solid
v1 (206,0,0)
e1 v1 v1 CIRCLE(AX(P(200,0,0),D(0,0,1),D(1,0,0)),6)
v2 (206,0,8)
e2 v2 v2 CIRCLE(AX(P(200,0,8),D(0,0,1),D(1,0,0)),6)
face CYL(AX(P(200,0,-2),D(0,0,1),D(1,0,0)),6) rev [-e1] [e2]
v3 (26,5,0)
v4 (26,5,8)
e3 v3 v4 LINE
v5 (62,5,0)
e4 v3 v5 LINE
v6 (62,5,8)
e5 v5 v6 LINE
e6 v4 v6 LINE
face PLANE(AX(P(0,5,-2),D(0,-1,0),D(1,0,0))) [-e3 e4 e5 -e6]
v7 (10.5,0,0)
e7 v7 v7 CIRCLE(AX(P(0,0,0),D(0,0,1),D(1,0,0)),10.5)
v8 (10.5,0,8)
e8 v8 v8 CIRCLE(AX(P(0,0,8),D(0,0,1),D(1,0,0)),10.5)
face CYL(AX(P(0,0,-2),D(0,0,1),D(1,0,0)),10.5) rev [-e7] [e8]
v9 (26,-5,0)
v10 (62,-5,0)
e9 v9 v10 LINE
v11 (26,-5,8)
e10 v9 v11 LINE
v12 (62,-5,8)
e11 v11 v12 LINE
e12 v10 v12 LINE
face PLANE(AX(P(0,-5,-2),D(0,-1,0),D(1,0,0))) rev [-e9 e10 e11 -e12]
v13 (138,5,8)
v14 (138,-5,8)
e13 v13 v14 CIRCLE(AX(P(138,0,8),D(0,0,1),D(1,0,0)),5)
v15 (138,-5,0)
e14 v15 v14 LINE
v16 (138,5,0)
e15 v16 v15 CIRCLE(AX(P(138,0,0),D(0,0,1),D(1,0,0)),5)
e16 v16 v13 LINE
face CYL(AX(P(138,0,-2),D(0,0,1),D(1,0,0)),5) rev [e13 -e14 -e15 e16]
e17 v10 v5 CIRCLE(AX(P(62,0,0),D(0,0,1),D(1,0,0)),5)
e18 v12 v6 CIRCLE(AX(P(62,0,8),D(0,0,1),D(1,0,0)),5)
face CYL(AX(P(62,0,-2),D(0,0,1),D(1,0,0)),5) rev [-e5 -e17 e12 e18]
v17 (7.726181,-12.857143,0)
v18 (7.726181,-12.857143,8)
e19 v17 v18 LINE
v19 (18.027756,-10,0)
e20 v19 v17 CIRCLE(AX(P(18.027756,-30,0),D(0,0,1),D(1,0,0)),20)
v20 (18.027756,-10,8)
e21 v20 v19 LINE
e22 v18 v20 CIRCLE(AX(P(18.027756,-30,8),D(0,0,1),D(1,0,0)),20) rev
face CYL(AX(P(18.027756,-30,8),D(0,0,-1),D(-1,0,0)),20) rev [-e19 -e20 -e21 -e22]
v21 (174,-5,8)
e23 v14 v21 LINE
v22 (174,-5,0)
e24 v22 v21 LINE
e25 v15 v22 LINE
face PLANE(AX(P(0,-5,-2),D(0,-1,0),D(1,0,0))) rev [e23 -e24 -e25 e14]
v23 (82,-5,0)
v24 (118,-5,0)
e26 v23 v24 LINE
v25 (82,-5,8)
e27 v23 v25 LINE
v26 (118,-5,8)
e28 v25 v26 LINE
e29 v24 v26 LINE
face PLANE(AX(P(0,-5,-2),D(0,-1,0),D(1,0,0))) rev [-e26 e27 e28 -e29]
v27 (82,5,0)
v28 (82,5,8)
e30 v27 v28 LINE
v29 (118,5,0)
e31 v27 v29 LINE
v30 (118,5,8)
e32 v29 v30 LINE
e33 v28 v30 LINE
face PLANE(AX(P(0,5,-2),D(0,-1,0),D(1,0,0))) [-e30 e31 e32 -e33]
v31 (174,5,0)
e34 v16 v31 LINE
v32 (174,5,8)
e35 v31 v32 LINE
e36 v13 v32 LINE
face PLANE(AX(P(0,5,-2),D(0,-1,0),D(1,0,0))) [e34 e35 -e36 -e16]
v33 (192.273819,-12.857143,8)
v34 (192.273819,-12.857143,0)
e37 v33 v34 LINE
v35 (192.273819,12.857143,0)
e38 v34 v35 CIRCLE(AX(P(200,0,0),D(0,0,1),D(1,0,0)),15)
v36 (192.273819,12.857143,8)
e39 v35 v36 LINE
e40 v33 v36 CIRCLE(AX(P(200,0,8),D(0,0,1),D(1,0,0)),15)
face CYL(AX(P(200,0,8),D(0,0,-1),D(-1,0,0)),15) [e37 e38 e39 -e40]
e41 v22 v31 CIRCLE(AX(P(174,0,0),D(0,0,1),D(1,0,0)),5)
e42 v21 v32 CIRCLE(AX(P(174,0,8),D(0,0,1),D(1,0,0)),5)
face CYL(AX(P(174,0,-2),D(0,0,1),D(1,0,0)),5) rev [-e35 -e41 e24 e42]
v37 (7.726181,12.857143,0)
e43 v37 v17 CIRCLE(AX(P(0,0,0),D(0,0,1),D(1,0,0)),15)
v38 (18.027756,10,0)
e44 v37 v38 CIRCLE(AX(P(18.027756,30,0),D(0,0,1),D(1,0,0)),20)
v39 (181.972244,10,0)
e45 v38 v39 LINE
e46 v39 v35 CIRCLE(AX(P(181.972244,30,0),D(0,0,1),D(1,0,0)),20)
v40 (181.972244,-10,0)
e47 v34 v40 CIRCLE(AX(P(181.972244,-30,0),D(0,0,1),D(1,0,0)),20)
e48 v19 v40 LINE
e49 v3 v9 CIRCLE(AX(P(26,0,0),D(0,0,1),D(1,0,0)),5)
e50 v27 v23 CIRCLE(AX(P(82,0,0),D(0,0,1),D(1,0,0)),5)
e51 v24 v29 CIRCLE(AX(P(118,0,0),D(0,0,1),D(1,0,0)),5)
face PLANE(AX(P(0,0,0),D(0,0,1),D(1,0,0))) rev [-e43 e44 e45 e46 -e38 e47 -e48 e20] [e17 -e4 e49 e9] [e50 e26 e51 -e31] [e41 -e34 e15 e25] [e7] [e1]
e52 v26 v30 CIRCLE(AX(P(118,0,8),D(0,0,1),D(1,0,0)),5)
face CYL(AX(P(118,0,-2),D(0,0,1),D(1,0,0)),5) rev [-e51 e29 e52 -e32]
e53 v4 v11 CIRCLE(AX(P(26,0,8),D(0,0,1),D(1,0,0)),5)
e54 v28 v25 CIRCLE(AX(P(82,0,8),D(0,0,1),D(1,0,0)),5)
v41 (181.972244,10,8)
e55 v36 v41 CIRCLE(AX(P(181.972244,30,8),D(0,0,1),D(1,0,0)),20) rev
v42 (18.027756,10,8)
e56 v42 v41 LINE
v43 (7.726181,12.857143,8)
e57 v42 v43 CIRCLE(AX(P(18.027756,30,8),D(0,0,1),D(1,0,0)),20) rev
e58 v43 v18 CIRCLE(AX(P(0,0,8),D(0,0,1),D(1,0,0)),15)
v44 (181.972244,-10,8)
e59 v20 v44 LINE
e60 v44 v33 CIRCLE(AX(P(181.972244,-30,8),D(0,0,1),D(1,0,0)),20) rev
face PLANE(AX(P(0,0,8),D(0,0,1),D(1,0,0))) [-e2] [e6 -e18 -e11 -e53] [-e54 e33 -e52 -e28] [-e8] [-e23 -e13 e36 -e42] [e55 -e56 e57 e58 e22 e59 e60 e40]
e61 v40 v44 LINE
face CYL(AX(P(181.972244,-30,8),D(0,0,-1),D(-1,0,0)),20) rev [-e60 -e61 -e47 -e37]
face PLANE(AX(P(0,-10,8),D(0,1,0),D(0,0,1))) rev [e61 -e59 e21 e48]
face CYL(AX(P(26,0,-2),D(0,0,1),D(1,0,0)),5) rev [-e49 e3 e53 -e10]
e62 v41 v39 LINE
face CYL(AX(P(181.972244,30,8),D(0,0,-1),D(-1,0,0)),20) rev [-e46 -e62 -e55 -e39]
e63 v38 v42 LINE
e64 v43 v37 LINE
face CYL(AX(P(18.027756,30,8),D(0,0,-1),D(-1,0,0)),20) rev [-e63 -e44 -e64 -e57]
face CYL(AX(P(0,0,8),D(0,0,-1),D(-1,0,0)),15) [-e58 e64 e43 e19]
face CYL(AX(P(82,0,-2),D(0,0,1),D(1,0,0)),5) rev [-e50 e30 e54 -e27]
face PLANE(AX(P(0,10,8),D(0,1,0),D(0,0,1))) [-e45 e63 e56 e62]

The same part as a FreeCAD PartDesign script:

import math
import FreeCAD as App
import Part
import Sketcher
from FreeCAD import Vector
Q = App.Units.Quantity


def edges_at(feature, points):
    """Names of the edges that pass closest to the given points."""
    edges = feature.Shape.Edges
    near = lambda p: min(range(len(edges)), key=lambda i: edges[i].distToShape(Part.Vertex(*p))[0])
    return sorted({f"Edge{near(p) + 1}" for p in points})

doc = App.newDocument("Part")
body = doc.addObject("PartDesign::Body", "Body")

# Sketch on XY plane
sketch1 = doc.addObject("Sketcher::SketchObject", "Sketch")
body.addObject(sketch1)
sketch1.AttachmentSupport = (doc.XY_Plane, [""])
sketch1.MapMode = "FlatFace"
sketch1.addGeometry(Part.LineSegment(Vector(11, -10, 0), Vector(189, -10, 0)), False)
sketch1.addGeometry(Part.ArcOfCircle(Part.Circle(Vector(200, 0, 0), Vector(0, 0, 1), 15), math.radians(-138), math.radians(0)), False)
sketch1.addGeometry(Part.ArcOfCircle(Part.Circle(Vector(200, 0, 0), Vector(0, 0, 1), 15), math.radians(0), math.radians(138)), False)
sketch1.addGeometry(Part.LineSegment(Vector(189, 10, 0), Vector(11, 10, 0)), False)
sketch1.addGeometry(Part.ArcOfCircle(Part.Circle(Vector(0, 0, 0), Vector(0, 0, 1), 15), math.radians(42), math.radians(318)), False)
sketch1.addConstraint(Sketcher.Constraint("Coincident", 0, 2, 1, 1))
sketch1.addConstraint(Sketcher.Constraint("Tangent", 1, 2, 2, 1))
sketch1.addConstraint(Sketcher.Constraint("Coincident", 2, 2, 3, 1))
sketch1.addConstraint(Sketcher.Constraint("Coincident", 3, 2, 4, 1))
sketch1.addConstraint(Sketcher.Constraint("Coincident", 4, 2, 0, 1))
sketch1.addConstraint(Sketcher.Constraint("Horizontal", 0))
sketch1.addConstraint(Sketcher.Constraint("Horizontal", 3))
sketch1.addConstraint(Sketcher.Constraint("Coincident", 4, 3, -1, 1))
sketch1.addConstraint(Sketcher.Constraint("Equal", 1, 2))
sketch1.addConstraint(Sketcher.Constraint("Equal", 2, 4))
sketch1.addConstraint(Sketcher.Constraint("Symmetric", 0, 2, 2, 2, -1))
sketch1.addConstraint(Sketcher.Constraint("PointOnObject", 1, 2, -1))
sketch1.addConstraint(Sketcher.Constraint("Radius", 1, Q("15 mm")))
sketch1.addConstraint(Sketcher.Constraint("DistanceX", -1, 1, 1, 3, Q("200 mm")))
sketch1.addConstraint(Sketcher.Constraint("DistanceY", 0, 2, -1, 1, Q("10 mm")))
pad1 = doc.addObject("PartDesign::Pad", "Pad")
body.addObject(pad1)
pad1.Profile = sketch1
pad1.Length = 8
doc.recompute()

fillet = doc.addObject("PartDesign::Fillet", "Fillet")
body.addObject(fillet)
fillet.Base = (pad1, edges_at(pad1, [
    (11.18, 10, 4),
    (188.82, 10, 4),
    (188.82, -10, 4),
    (11.18, -10, 4),
]))
fillet.Radius = 20

# Sketch on XY plane
sketch2 = doc.addObject("Sketcher::SketchObject", "Sketch001")
body.addObject(sketch2)
sketch2.AttachmentSupport = (doc.XY_Plane, [""])
sketch2.MapMode = "FlatFace"
sketch2.AttachmentOffset = App.Placement(Vector(0, 0, 8), App.Rotation())
sketch2.addGeometry(Part.Circle(Vector(0, 0, 0), Vector(0, 0, 1), 10), False)
sketch2.addGeometry(Part.Circle(Vector(200, 0, 0), Vector(0, 0, 1), 6), False)
sketch2.addConstraint(Sketcher.Constraint("Coincident", 0, 3, -1, 1))
sketch2.addConstraint(Sketcher.Constraint("PointOnObject", 1, 3, -1))
sketch2.addConstraint(Sketcher.Constraint("Diameter", 0, Q("21 mm")))
sketch2.addConstraint(Sketcher.Constraint("Diameter", 1, Q("12 mm")))
sketch2.addConstraint(Sketcher.Constraint("DistanceX", -1, 1, 1, 3, Q("200 mm")))
pocket1 = doc.addObject("PartDesign::Pocket", "Pocket")
body.addObject(pocket1)
pocket1.Profile = sketch2
pocket1.Length = 10

# Sketch on XY plane
sketch3 = doc.addObject("Sketcher::SketchObject", "Sketch002")
body.addObject(sketch3)
sketch3.AttachmentSupport = (doc.XY_Plane, [""])
sketch3.MapMode = "FlatFace"
sketch3.AttachmentOffset = App.Placement(Vector(0, 0, 8), App.Rotation())
sketch3.addGeometry(Part.ArcOfCircle(Part.Circle(Vector(26, 0, 0), Vector(0, 0, 1), 5), math.radians(90), math.radians(270)), False)
sketch3.addGeometry(Part.LineSegment(Vector(26, -5, 0), Vector(62, -5, 0)), False)
sketch3.addGeometry(Part.ArcOfCircle(Part.Circle(Vector(62, 0, 0), Vector(0, 0, 1), 5), math.radians(-90), math.radians(0)), False)
sketch3.addGeometry(Part.ArcOfCircle(Part.Circle(Vector(62, 0, 0), Vector(0, 0, 1), 5), math.radians(0), math.radians(90)), False)
sketch3.addGeometry(Part.LineSegment(Vector(62, 5, 0), Vector(26, 5, 0)), False)
sketch3.addGeometry(Part.LineSegment(Vector(82, -5, 0), Vector(118, -5, 0)), False)
sketch3.addGeometry(Part.ArcOfCircle(Part.Circle(Vector(118, 0, 0), Vector(0, 0, 1), 5), math.radians(-90), math.radians(0)), False)
sketch3.addGeometry(Part.ArcOfCircle(Part.Circle(Vector(118, 0, 0), Vector(0, 0, 1), 5), math.radians(0), math.radians(90)), False)
sketch3.addGeometry(Part.LineSegment(Vector(118, 5, 0), Vector(82, 5, 0)), False)
sketch3.addGeometry(Part.ArcOfCircle(Part.Circle(Vector(82, 0, 0), Vector(0, 0, 1), 5), math.radians(90), math.radians(270)), False)
sketch3.addGeometry(Part.LineSegment(Vector(138, -5, 0), Vector(174, -5, 0)), False)
sketch3.addGeometry(Part.ArcOfCircle(Part.Circle(Vector(174, 0, 0), Vector(0, 0, 1), 5), math.radians(-90), math.radians(0)), False)
sketch3.addGeometry(Part.ArcOfCircle(Part.Circle(Vector(174, 0, 0), Vector(0, 0, 1), 5), math.radians(0), math.radians(90)), False)
sketch3.addGeometry(Part.LineSegment(Vector(174, 5, 0), Vector(138, 5, 0)), False)
sketch3.addGeometry(Part.ArcOfCircle(Part.Circle(Vector(138, 0, 0), Vector(0, 0, 1), 5), math.radians(90), math.radians(270)), False)
sketch3.addConstraint(Sketcher.Constraint("Tangent", 0, 2, 1, 1))
sketch3.addConstraint(Sketcher.Constraint("Tangent", 1, 2, 2, 1))
sketch3.addConstraint(Sketcher.Constraint("Tangent", 2, 2, 3, 1))
sketch3.addConstraint(Sketcher.Constraint("Tangent", 3, 2, 4, 1))
sketch3.addConstraint(Sketcher.Constraint("Tangent", 4, 2, 0, 1))
sketch3.addConstraint(Sketcher.Constraint("Tangent", 5, 2, 6, 1))
sketch3.addConstraint(Sketcher.Constraint("Tangent", 6, 2, 7, 1))
sketch3.addConstraint(Sketcher.Constraint("Tangent", 7, 2, 8, 1))
sketch3.addConstraint(Sketcher.Constraint("Tangent", 8, 2, 9, 1))
sketch3.addConstraint(Sketcher.Constraint("Tangent", 9, 2, 5, 1))
sketch3.addConstraint(Sketcher.Constraint("Tangent", 10, 2, 11, 1))
sketch3.addConstraint(Sketcher.Constraint("Tangent", 11, 2, 12, 1))
sketch3.addConstraint(Sketcher.Constraint("Tangent", 12, 2, 13, 1))
sketch3.addConstraint(Sketcher.Constraint("Tangent", 13, 2, 14, 1))
sketch3.addConstraint(Sketcher.Constraint("Tangent", 14, 2, 10, 1))
sketch3.addConstraint(Sketcher.Constraint("Horizontal", 1))
sketch3.addConstraint(Sketcher.Constraint("Horizontal", 4))
sketch3.addConstraint(Sketcher.Constraint("Horizontal", 5))
sketch3.addConstraint(Sketcher.Constraint("Horizontal", 8))
sketch3.addConstraint(Sketcher.Constraint("Horizontal", 10))
sketch3.addConstraint(Sketcher.Constraint("Horizontal", 13))
sketch3.addConstraint(Sketcher.Constraint("Equal", 0, 2))
sketch3.addConstraint(Sketcher.Constraint("Equal", 3, 6))
sketch3.addConstraint(Sketcher.Constraint("Equal", 6, 7))
sketch3.addConstraint(Sketcher.Constraint("Equal", 9, 11))
sketch3.addConstraint(Sketcher.Constraint("Equal", 11, 12))
sketch3.addConstraint(Sketcher.Constraint("PointOnObject", 0, 3, -1))
sketch3.addConstraint(Sketcher.Constraint("PointOnObject", 6, 3, -1))
sketch3.addConstraint(Sketcher.Constraint("PointOnObject", 11, 3, -1))
sketch3.addConstraint(Sketcher.Constraint("PointOnObject", 2, 2, -1))
sketch3.addConstraint(Sketcher.Constraint("PointOnObject", 6, 2, -1))
sketch3.addConstraint(Sketcher.Constraint("PointOnObject", 11, 2, -1))
sketch3.addConstraint(Sketcher.Constraint("Equal", 4, 5))
sketch3.addConstraint(Sketcher.Constraint("Equal", 8, 10))
sketch3.addConstraint(Sketcher.Constraint("Radius", 0, Q("5 mm")))
sketch3.addConstraint(Sketcher.Constraint("DistanceX", 1, 1, 1, 2, Q("36 mm")))
sketch3.addConstraint(Sketcher.Constraint("DistanceX", -1, 1, 0, 3, Q("26 mm")))
sketch3.addConstraint(Sketcher.Constraint("DistanceX", -1, 1, 6, 3, Q("118 mm")))
sketch3.addConstraint(Sketcher.Constraint("DistanceX", -1, 1, 11, 3, Q("174 mm")))
pocket2 = doc.addObject("PartDesign::Pocket", "Pocket001")
body.addObject(pocket2)
pocket2.Profile = sketch3
pocket2.Length = 10

doc.recompute()
